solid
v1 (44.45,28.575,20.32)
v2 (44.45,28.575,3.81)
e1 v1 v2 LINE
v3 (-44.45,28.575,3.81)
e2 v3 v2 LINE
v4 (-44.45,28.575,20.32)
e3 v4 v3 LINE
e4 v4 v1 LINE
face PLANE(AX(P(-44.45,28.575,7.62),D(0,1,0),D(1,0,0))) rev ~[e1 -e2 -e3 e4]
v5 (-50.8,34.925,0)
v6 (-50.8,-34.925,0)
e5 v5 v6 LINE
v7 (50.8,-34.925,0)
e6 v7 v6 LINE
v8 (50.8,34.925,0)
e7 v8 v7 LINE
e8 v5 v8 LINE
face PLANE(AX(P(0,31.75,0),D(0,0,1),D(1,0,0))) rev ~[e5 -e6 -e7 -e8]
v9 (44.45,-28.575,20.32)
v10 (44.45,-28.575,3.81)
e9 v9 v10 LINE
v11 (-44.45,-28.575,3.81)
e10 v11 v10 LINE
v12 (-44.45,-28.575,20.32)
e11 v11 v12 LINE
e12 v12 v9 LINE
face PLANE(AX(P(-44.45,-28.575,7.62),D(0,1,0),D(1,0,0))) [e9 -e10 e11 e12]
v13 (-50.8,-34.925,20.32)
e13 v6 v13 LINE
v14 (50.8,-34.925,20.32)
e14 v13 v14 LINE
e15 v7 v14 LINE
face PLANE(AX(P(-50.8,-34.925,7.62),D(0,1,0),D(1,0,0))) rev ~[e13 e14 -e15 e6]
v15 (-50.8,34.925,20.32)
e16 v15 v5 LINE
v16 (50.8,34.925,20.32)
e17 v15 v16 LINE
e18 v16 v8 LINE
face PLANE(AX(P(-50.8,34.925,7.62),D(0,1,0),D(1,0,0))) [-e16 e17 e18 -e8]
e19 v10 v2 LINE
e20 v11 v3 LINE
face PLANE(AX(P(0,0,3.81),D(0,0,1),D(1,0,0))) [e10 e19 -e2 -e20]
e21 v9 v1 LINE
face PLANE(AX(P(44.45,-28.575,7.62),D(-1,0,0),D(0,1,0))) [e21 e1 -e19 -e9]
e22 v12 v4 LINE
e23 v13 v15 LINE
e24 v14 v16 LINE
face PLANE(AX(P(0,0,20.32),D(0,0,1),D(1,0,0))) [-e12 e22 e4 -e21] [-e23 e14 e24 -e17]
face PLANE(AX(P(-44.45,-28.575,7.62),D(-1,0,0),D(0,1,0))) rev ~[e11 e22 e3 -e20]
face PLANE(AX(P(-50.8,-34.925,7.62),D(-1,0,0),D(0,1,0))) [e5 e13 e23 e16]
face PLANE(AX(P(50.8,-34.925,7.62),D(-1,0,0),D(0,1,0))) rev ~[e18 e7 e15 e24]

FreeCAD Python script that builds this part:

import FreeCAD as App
import Part
import Sketcher
Q = App.Units.Quantity


def add_polygon(sketch, points):
    """Adds a closed chain of lines whose ends are joined by coincident constraints."""
    first, n = sketch.GeometryCount, len(points)
    for a, b in zip(points, points[1:] + points[:1]):
        sketch.addGeometry(Part.LineSegment(App.Vector(*a, 0), App.Vector(*b, 0)), False)
    for i in range(n):
        sketch.addConstraint(Sketcher.Constraint("Coincident", first + i, 2, first + (i + 1) % n, 1))

doc = App.newDocument("Part")
body = doc.addObject("PartDesign::Body", "Body")

# Sketch on XY plane
sketch1 = doc.addObject("Sketcher::SketchObject", "Sketch")
body.addObject(sketch1)
sketch1.AttachmentSupport = (doc.XY_Plane, [""])
sketch1.MapMode = "FlatFace"
add_polygon(sketch1, [(-44.45, 28.575), (-44.45, -28.575), (44.45, -28.575), (44.45, 28.575)])  # lines 0-3
sketch1.addConstraint([
    Sketcher.Constraint("Vertical", 0),
    Sketcher.Constraint("Horizontal", 1),
    Sketcher.Constraint("Vertical", 2),
    Sketcher.Constraint("Horizontal", 3),
    Sketcher.Constraint("Symmetric", 0, 2, 2, 2, -1, 1),
    Sketcher.Constraint("DistanceX", 1, 1, 1, 2, Q("3.5 in")),
    Sketcher.Constraint("DistanceY", 0, 2, 0, 1, Q("2.25 in")),
])
pad1 = doc.addObject("PartDesign::Pad", "Pad")
body.addObject(pad1)
pad1.Profile = sketch1
pad1.Length = Q("0.15 in")

# Sketch on XY plane
sketch2 = doc.addObject("Sketcher::SketchObject", "Sketch001")
body.addObject(sketch2)
sketch2.AttachmentSupport = (doc.XY_Plane, [""])
sketch2.MapMode = "FlatFace"
add_polygon(sketch2, [(-50.8, 28.575), (-50.8, -28.575), (-44.45, -28.575), (-44.45, 28.575)])  # lines 0-3
sketch2.addConstraint([
    Sketcher.Constraint("Vertical", 0),
    Sketcher.Constraint("Horizontal", 1),
    Sketcher.Constraint("Vertical", 2),
    Sketcher.Constraint("Horizontal", 3),
    Sketcher.Constraint("DistanceX", 0, 2, -1, 1, Q("2 in")),
    Sketcher.Constraint("DistanceX", 1, 1, 1, 2, Q("0.25 in")),
    Sketcher.Constraint("DistanceY", 0, 2, 0, 1, Q("2.25 in")),
    Sketcher.Constraint("DistanceY", 0, 2, -1, 1, Q("1.125 in")),
])
pad2 = doc.addObject("PartDesign::Pad", "Pad001")
body.addObject(pad2)
pad2.Profile = sketch2
pad2.Length = Q("0.3 in")

# Sketch on XY plane
sketch3 = doc.addObject("Sketcher::SketchObject", "Sketch002")
body.addObject(sketch3)
sketch3.AttachmentSupport = (doc.XY_Plane, [""])
sketch3.MapMode = "FlatFace"
add_polygon(sketch3, [(-50.8, -28.575), (-50.8, -34.925), (44.45, -34.925), (44.45, -28.575)])  # lines 0-3
sketch3.addConstraint([
    Sketcher.Constraint("Vertical", 0),
    Sketcher.Constraint("Horizontal", 1),
    Sketcher.Constraint("Vertical", 2),
    Sketcher.Constraint("Horizontal", 3),
    Sketcher.Constraint("DistanceX", 0, 2, -1, 1, Q("2 in")),
    Sketcher.Constraint("DistanceX", 1, 1, 1, 2, Q("3.75 in")),
    Sketcher.Constraint("DistanceY", 0, 2, 0, 1, Q("0.25 in")),
    Sketcher.Constraint("DistanceY", 0, 2, -1, 1, Q("1.375 in")),
])
pad3 = doc.addObject("PartDesign::Pad", "Pad002")
body.addObject(pad3)
pad3.Profile = sketch3
pad3.Length = Q("0.3 in")

# Sketch on XY plane
sketch4 = doc.addObject("Sketcher::SketchObject", "Sketch003")
body.addObject(sketch4)
sketch4.AttachmentSupport = (doc.XY_Plane, [""])
sketch4.MapMode = "FlatFace"
add_polygon(sketch4, [(44.45, 28.575), (44.45, -34.925), (50.8, -34.925), (50.8, 28.575)])  # lines 0-3
sketch4.addConstraint([
    Sketcher.Constraint("Vertical", 0),
    Sketcher.Constraint("Horizontal", 1),
    Sketcher.Constraint("Vertical", 2),
    Sketcher.Constraint("Horizontal", 3),
    Sketcher.Constraint("DistanceY", 0, 2, 0, 1, Q("2.5 in")),
    Sketcher.Constraint("DistanceX", -1, 1, 1, 2, Q("2 in")),
    Sketcher.Constraint("DistanceX", 1, 1, 1, 2, Q("0.25 in")),
    Sketcher.Constraint("DistanceY", 0, 2, -1, 1, Q("1.375 in")),
])
pad4 = doc.addObject("PartDesign::Pad", "Pad003")
body.addObject(pad4)
pad4.Profile = sketch4
pad4.Length = Q("0.3 in")

# Sketch on XY plane
sketch5 = doc.addObject("Sketcher::SketchObject", "Sketch004")
body.addObject(sketch5)
sketch5.AttachmentSupport = (doc.XY_Plane, [""])
sketch5.MapMode = "FlatFace"
add_polygon(sketch5, [(-50.8, 34.925), (-50.8, 28.575), (50.8, 28.575), (50.8, 34.925)])  # lines 0-3
sketch5.addConstraint([
    Sketcher.Constraint("Vertical", 0),
    Sketcher.Constraint("Horizontal", 1),
    Sketcher.Constraint("Vertical", 2),
    Sketcher.Constraint("Horizontal", 3),
    Sketcher.Constraint("DistanceX", 1, 1, 1, 2, Q("4 in")),
    Sketcher.Constraint("DistanceX", 0, 2, -1, 1, Q("2 in")),
    Sketcher.Constraint("DistanceY", 0, 2, 0, 1, Q("0.25 in")),
    Sketcher.Constraint("DistanceY", -1, 1, 0, 2, Q("1.125 in")),
])
pad5 = doc.addObject("PartDesign::Pad", "Pad004")
body.addObject(pad5)
pad5.Profile = sketch5
pad5.Length = Q("0.3 in")

# Sketch on XY plane
sketch6 = doc.addObject("Sketcher::SketchObject", "Sketch005")
body.addObject(sketch6)
sketch6.AttachmentSupport = (doc.XY_Plane, [""])
sketch6.MapMode = "FlatFace"
sketch6.AttachmentOffset = App.Placement(App.Vector(0, 0, 0.3 * 25.4), App.Rotation())
add_polygon(sketch6, [(-50.8, 34.925), (-50.8, -34.925), (50.8, -34.925), (50.8, 34.925)])  # lines 0-3
add_polygon(sketch6, [(44.45, -28.575), (-44.45, -28.575), (-44.45, 28.575), (44.45, 28.575)])  # lines 4-7
sketch6.addConstraint([
    Sketcher.Constraint("Vertical", 0),
    Sketcher.Constraint("Horizontal", 1),
    Sketcher.Constraint("Vertical", 2),
    Sketcher.Constraint("Horizontal", 3),
    Sketcher.Constraint("Horizontal", 4),
    Sketcher.Constraint("Vertical", 5),
    Sketcher.Constraint("Horizontal", 6),
    Sketcher.Constraint("Vertical", 7),
    Sketcher.Constraint("Symmetric", 0, 2, 2, 2, -1, 1),
    Sketcher.Constraint("Symmetric", 4, 2, 6, 2, -1, 1),
    Sketcher.Constraint("DistanceX", 1, 1, 1, 2, Q("4 in")),
    Sketcher.Constraint("DistanceX", 4, 2, 4, 1, Q("3.5 in")),
    Sketcher.Constraint("DistanceY", 0, 2, 0, 1, Q("2.75 in")),
    Sketcher.Constraint("DistanceY", 5, 1, 5, 2, Q("2.25 in")),
])
pad6 = doc.addObject("PartDesign::Pad", "Pad005")
body.addObject(pad6)
pad6.Profile = sketch6
pad6.Length = Q("0.5 in")

doc.recompute()
